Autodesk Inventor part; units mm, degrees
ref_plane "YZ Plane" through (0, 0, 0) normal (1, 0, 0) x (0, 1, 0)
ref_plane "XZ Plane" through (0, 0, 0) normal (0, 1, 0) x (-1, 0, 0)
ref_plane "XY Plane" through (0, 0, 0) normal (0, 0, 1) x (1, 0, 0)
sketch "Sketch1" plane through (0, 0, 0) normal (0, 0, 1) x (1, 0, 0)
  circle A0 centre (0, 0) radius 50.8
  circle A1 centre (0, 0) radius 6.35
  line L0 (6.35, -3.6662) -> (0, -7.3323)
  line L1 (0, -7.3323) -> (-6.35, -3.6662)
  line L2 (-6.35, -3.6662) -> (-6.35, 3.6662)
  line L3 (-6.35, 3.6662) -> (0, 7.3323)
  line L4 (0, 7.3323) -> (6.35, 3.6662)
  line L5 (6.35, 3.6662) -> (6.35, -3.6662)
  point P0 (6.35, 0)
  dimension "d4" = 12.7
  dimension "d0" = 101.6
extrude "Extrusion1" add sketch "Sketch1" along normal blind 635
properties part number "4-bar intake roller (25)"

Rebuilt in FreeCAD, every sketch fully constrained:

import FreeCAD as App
import Part
import Sketcher

V = App.Vector
Q = App.Units.Quantity

doc = App.newDocument("Part")
body = doc.addObject("PartDesign::Body", "Body")

# Sketch on XY plane
sketch1 = body.newObject("Sketcher::SketchObject", "Sketch")
sketch1.AttachmentSupport = (doc.getObject("XY_Plane"), [""])
sketch1.MapMode = "FlatFace"
sketch1.addGeometry(Part.Circle(V(0, 0, 0), V(0, 0, 1), 51), False)
sketch1.addGeometry(Part.LineSegment(V(6, 4, 0), V(6, -4, 0)), False)
sketch1.addGeometry(Part.LineSegment(V(6, -4, 0), V(0, -7, 0)), False)
sketch1.addGeometry(Part.LineSegment(V(0, -7, 0), V(-6, -4, 0)), False)
sketch1.addGeometry(Part.LineSegment(V(-6, -4, 0), V(-6, 4, 0)), False)
sketch1.addGeometry(Part.LineSegment(V(-6, 4, 0), V(0, 7, 0)), False)
sketch1.addGeometry(Part.LineSegment(V(0, 7, 0), V(6, 4, 0)), False)
sketch1.addConstraint(Sketcher.Constraint("Coincident", 1, 2, 2, 1))
sketch1.addConstraint(Sketcher.Constraint("Coincident", 2, 2, 3, 1))
sketch1.addConstraint(Sketcher.Constraint("Coincident", 3, 2, 4, 1))
sketch1.addConstraint(Sketcher.Constraint("Coincident", 4, 2, 5, 1))
sketch1.addConstraint(Sketcher.Constraint("Coincident", 5, 2, 6, 1))
sketch1.addConstraint(Sketcher.Constraint("Coincident", 6, 2, 1, 1))
sketch1.addConstraint(Sketcher.Constraint("Vertical", 1))
sketch1.addConstraint(Sketcher.Constraint("Vertical", 4))
sketch1.addConstraint(Sketcher.Constraint("Coincident", 0, 3, -1, 1))
sketch1.addConstraint(Sketcher.Constraint("Symmetric", 1, 2, 4, 2, -1, 1))
sketch1.addConstraint(Sketcher.Constraint("Symmetric", 2, 2, 5, 2, -1, 1))
sketch1.addConstraint(Sketcher.Constraint("PointOnObject", 2, 2, -2))
sketch1.addConstraint(Sketcher.Constraint("Parallel", 3, 6))
sketch1.addConstraint(Sketcher.Constraint("Horizontal", 1, 2, 3, 2))
sketch1.addConstraint(Sketcher.Constraint("Diameter", 0, Q("4 in")))
sketch1.addConstraint(Sketcher.Constraint("DistanceX", 3, 2, 1, 2, Q("0.5 in")))
sketch1.addConstraint(Sketcher.Constraint("Angle", 2, Q("-150.0005 deg")))
sketch1.addConstraint(Sketcher.Constraint("DistanceY", 2, 2, 4, 2, Q("0.433 in")))
pad1 = body.newObject("PartDesign::Pad", "Pad")
pad1.Profile = sketch1
pad1.Length = Q("25 in")

doc.recompute()
